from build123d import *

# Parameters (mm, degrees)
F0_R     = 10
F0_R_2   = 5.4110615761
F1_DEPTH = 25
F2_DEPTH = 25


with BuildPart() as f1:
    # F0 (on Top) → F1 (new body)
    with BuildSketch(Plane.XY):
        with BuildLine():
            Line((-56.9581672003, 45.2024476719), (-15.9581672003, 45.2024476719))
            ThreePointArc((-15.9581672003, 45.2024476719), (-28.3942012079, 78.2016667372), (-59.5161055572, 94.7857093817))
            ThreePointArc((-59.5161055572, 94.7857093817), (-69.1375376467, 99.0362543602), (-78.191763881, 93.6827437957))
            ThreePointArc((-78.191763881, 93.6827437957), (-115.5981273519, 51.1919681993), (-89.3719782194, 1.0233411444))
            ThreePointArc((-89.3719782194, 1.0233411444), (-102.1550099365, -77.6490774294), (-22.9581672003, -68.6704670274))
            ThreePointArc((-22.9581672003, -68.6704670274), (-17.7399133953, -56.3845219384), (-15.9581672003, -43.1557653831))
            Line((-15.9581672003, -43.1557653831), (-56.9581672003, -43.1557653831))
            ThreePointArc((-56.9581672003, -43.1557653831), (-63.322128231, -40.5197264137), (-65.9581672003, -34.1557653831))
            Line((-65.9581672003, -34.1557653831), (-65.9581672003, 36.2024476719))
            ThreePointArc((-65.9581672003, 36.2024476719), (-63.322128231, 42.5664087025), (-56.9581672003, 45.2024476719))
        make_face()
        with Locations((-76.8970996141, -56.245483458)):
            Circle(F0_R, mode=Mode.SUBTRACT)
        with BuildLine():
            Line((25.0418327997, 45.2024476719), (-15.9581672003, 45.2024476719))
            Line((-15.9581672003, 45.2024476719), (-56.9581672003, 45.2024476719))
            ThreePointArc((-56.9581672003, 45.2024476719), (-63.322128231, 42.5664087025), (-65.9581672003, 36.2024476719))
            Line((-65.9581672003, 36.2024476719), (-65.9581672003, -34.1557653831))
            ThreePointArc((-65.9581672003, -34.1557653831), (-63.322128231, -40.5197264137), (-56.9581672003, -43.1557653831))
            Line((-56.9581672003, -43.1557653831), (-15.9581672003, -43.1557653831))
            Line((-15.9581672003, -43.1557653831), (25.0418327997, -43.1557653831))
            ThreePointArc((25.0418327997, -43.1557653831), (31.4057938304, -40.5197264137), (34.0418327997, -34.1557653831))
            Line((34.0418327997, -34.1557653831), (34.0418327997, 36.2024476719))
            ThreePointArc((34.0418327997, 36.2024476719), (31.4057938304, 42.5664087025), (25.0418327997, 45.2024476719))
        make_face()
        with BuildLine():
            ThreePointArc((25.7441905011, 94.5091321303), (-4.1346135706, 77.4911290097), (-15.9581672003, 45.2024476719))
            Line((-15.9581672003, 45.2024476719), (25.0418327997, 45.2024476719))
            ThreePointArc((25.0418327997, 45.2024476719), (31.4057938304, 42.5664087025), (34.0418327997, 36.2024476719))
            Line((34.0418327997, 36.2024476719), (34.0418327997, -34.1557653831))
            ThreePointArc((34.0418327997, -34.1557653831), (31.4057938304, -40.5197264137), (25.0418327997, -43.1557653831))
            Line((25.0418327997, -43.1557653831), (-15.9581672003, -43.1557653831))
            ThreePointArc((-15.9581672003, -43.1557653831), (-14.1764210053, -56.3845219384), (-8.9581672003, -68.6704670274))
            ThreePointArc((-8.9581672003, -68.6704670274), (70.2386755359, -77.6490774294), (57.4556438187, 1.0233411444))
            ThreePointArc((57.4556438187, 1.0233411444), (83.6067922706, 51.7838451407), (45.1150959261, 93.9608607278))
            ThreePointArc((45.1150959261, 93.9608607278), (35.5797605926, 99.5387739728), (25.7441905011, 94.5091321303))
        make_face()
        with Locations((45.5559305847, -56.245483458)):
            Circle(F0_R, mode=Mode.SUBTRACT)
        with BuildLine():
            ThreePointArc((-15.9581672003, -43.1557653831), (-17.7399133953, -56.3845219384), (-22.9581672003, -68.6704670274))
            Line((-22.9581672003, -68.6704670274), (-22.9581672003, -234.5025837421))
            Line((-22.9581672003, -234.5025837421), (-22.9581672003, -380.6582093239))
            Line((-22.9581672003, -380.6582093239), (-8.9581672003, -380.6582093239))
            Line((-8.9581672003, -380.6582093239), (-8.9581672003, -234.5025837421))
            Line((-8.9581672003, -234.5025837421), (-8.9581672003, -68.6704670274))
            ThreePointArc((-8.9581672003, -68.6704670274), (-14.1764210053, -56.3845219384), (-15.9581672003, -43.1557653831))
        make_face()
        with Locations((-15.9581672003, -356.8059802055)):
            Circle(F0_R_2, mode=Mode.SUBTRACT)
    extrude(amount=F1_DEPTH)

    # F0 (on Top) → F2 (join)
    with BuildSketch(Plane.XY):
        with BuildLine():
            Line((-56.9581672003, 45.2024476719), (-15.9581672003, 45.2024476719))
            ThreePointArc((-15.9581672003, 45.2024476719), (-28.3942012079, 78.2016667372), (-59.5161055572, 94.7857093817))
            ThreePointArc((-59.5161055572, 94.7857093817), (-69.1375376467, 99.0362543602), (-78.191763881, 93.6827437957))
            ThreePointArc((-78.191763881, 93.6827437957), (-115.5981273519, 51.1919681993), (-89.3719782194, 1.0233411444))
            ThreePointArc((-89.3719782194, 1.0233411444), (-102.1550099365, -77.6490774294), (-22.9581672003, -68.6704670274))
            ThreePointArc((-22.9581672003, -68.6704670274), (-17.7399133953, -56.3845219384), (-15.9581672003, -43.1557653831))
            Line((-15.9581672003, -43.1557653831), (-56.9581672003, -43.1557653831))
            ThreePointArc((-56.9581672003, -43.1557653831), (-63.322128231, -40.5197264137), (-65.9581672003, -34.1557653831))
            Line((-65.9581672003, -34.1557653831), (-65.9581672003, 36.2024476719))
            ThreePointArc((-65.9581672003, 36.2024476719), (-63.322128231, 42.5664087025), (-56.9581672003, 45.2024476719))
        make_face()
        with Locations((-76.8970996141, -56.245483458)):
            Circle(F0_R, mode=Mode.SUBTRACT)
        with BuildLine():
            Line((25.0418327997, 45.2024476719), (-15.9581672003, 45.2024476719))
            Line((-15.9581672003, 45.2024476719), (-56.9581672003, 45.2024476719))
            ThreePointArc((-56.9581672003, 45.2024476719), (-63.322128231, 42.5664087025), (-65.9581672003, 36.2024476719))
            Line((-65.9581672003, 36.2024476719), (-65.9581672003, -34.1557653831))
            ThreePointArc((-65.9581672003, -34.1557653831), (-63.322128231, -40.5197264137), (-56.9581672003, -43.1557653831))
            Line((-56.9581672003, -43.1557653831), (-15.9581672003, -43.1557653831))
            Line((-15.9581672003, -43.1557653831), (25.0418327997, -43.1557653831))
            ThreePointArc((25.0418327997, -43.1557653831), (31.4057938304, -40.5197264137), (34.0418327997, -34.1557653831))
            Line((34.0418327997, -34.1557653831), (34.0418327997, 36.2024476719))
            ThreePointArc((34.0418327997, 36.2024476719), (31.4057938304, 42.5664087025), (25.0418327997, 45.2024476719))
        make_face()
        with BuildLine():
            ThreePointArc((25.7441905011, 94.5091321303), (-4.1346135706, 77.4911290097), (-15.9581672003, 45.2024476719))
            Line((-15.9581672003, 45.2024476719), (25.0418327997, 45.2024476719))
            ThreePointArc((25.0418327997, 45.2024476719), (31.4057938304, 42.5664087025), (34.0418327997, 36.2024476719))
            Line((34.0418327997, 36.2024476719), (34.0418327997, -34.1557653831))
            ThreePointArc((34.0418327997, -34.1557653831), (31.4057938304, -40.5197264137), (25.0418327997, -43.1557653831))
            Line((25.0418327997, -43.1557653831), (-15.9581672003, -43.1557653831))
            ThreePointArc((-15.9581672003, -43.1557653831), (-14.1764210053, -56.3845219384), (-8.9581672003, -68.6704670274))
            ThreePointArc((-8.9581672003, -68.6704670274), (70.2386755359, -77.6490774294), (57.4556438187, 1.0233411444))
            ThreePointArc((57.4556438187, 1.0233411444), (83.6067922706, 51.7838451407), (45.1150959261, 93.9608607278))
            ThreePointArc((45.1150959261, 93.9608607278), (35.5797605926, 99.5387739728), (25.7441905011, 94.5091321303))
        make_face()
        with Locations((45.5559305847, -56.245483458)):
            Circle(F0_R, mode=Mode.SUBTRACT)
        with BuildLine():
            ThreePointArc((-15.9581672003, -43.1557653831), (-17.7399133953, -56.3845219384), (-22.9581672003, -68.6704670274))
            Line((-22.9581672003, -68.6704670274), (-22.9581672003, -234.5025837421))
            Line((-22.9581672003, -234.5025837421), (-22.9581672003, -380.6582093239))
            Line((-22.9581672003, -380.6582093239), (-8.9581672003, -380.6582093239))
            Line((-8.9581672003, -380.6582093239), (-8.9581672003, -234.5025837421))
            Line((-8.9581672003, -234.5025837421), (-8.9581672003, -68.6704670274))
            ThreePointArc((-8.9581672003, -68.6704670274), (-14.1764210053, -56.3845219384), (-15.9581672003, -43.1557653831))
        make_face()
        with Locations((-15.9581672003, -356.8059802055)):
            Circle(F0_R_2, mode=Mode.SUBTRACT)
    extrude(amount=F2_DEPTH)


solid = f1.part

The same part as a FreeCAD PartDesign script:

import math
import FreeCAD as App
import Part
import Sketcher

V = App.Vector
Q = App.Units.Quantity

doc = App.newDocument("Part")
body = doc.addObject("PartDesign::Body", "Body")

# Sketch on XY plane
sketch1 = body.newObject("Sketcher::SketchObject", "Sketch")
sketch1.AttachmentSupport = (doc.getObject("XY_Plane"), [""])
sketch1.MapMode = "FlatFace"
sketch1.addGeometry([
    Part.ArcOfCircle(Part.Circle(V(-66, 45, 0), V(0, 0, 1), 50), math.radians(0), math.radians(83)),  # 0
    Part.ArcOfCircle(Part.Circle(V(-68, 88, 0), V(0, 0, 1), 12), math.radians(39), math.radians(148)),  # 1
    Part.ArcOfCircle(Part.Circle(V(-66, 45, 0), V(0, 0, 1), 50), math.radians(104), math.radians(242)),  # 2
    Part.ArcOfCircle(Part.Circle(V(-66, -43, 0), V(0, 0, 1), 50), math.radians(118), math.radians(329)),  # 3
    Part.LineSegment(V(-23, -69, 0), V(-23, -381, 0)),  # 4
    Part.LineSegment(V(-23, -381, 0), V(-9, -381, 0)),  # 5
    Part.LineSegment(V(-9, -381, 0), V(-9, -69, 0)),  # 6
    Part.ArcOfCircle(Part.Circle(V(34, -43, 0), V(0, 0, 1), 50), math.radians(-149), math.radians(62)),  # 7
    Part.ArcOfCircle(Part.Circle(V(34, 45, 0), V(0, 0, 1), 50), math.radians(-62), math.radians(77)),  # 8
    Part.ArcOfCircle(Part.Circle(V(35, 88, 0), V(0, 0, 1), 12), math.radians(31), math.radians(146)),  # 9
    Part.ArcOfCircle(Part.Circle(V(34, 45, 0), V(0, 0, 1), 50), math.radians(100), math.radians(180)),  # 10
    Part.Circle(V(-16, -357, 0), V(0, 0, 1), 5),  # 11
    Part.Circle(V(-77, -56, 0), V(0, 0, 1), 10),  # 12
    Part.Circle(V(46, -56, 0), V(0, 0, 1), 10),  # 13
], False)
sketch1.addConstraint([
    Sketcher.Constraint("Coincident", 0, 2, 1, 1),
    Sketcher.Constraint("Coincident", 1, 2, 2, 1),
    Sketcher.Constraint("Coincident", 2, 2, 3, 1),
    Sketcher.Constraint("Coincident", 3, 2, 4, 1),
    Sketcher.Constraint("Coincident", 4, 2, 5, 1),
    Sketcher.Constraint("Coincident", 5, 2, 6, 1),
    Sketcher.Constraint("Coincident", 6, 2, 7, 1),
    Sketcher.Constraint("Coincident", 7, 2, 8, 1),
    Sketcher.Constraint("Coincident", 8, 2, 9, 1),
    Sketcher.Constraint("Coincident", 9, 2, 10, 1),
    Sketcher.Constraint("Tangent", 10, 2, 0, 1),
    Sketcher.Constraint("Vertical", 4),
    Sketcher.Constraint("Horizontal", 5),
    Sketcher.Constraint("Vertical", 6),
    Sketcher.Constraint("Coincident", 2, 3, 0, 3),
    Sketcher.Constraint("Coincident", 10, 3, 8, 3),
    Sketcher.Constraint("Equal", 0, 2),
    Sketcher.Constraint("Equal", 2, 3),
    Sketcher.Constraint("Equal", 3, 7),
    Sketcher.Constraint("Equal", 7, 8),
    Sketcher.Constraint("Equal", 1, 9),
    Sketcher.Constraint("Equal", 8, 10),
    Sketcher.Constraint("Equal", 12, 13),
    Sketcher.Constraint("Horizontal", 3, 3, 7, 3),
    Sketcher.Constraint("Horizontal", 2, 3, 8, 3),
    Sketcher.Constraint("Horizontal", 12, 3, 13, 3),
    Sketcher.Constraint("Horizontal", 3, 2, 6, 2),
    Sketcher.Constraint("Horizontal", 2, 2, 7, 2),
    Sketcher.Constraint("Vertical", 2, 3, 3, 3),
    Sketcher.Constraint("Vertical", 11, 3, 10, 2),
    Sketcher.Constraint("Diameter", 12, Q("20 mm")),
    Sketcher.Constraint("Radius", 0, Q("50 mm")),
    Sketcher.Constraint("Radius", 1, Q("11.5 mm")),
    Sketcher.Constraint("DistanceX", 5, 1, 5, 2, Q("14 mm")),
    Sketcher.Constraint("Diameter", 11, Q("10.822123 mm")),
    Sketcher.Constraint("DistanceX", 12, 3, -1, 1, Q("76.8971 mm")),
    Sketcher.Constraint("DistanceX", 9, 3, 8, 2, Q("9.860699 mm")),
    Sketcher.Constraint("DistanceX", 0, 2, 8, 2, Q("104.631201 mm")),
    Sketcher.Constraint("DistanceY", 4, 2, 4, 1, Q("311.987742 mm")),
    Sketcher.Constraint("DistanceX", 1, 3, -1, 1, Q("68.459541 mm")),
    Sketcher.Constraint("DistanceY", 11, 3, -1, 1, Q("356.80598 mm")),
    Sketcher.Constraint("DistanceX", -1, 1, 13, 3, Q("45.555931 mm")),
    Sketcher.Constraint("DistanceY", -1, 1, 0, 2, Q("94.785709 mm")),
    Sketcher.Constraint("DistanceX", 2, 2, -1, 1, Q("89.371978 mm")),
    Sketcher.Constraint("DistanceY", -1, 1, 2, 2, Q("1.023341 mm")),
    Sketcher.Constraint("DistanceY", 4, 2, -1, 1, Q("380.658209 mm")),
    Sketcher.Constraint("DistanceY", 12, 3, 3, 3, Q("13.089718 mm")),
])
pad1 = body.newObject("PartDesign::Pad", "Pad")
pad1.Profile = sketch1
pad1.Length = 25

# Sketch on XY plane
sketch2 = body.newObject("Sketcher::SketchObject", "Sketch001")
sketch2.AttachmentSupport = (doc.getObject("XY_Plane"), [""])
sketch2.MapMode = "FlatFace"
sketch2.addGeometry([
    Part.ArcOfCircle(Part.Circle(V(-66, 45, 0), V(0, 0, 1), 50), math.radians(0), math.radians(83)),  # 0
    Part.ArcOfCircle(Part.Circle(V(-68, 88, 0), V(0, 0, 1), 12), math.radians(39), math.radians(148)),  # 1
    Part.ArcOfCircle(Part.Circle(V(-66, 45, 0), V(0, 0, 1), 50), math.radians(104), math.radians(242)),  # 2
    Part.ArcOfCircle(Part.Circle(V(-66, -43, 0), V(0, 0, 1), 50), math.radians(118), math.radians(329)),  # 3
    Part.LineSegment(V(-23, -69, 0), V(-23, -381, 0)),  # 4
    Part.LineSegment(V(-23, -381, 0), V(-9, -381, 0)),  # 5
    Part.LineSegment(V(-9, -381, 0), V(-9, -69, 0)),  # 6
    Part.ArcOfCircle(Part.Circle(V(34, -43, 0), V(0, 0, 1), 50), math.radians(-149), math.radians(62)),  # 7
    Part.ArcOfCircle(Part.Circle(V(34, 45, 0), V(0, 0, 1), 50), math.radians(-62), math.radians(77)),  # 8
    Part.ArcOfCircle(Part.Circle(V(35, 88, 0), V(0, 0, 1), 12), math.radians(31), math.radians(146)),  # 9
    Part.ArcOfCircle(Part.Circle(V(34, 45, 0), V(0, 0, 1), 50), math.radians(100), math.radians(180)),  # 10
    Part.Circle(V(-16, -357, 0), V(0, 0, 1), 5),  # 11
    Part.Circle(V(-77, -56, 0), V(0, 0, 1), 10),  # 12
    Part.Circle(V(46, -56, 0), V(0, 0, 1), 10),  # 13
], False)
sketch2.addConstraint([
    Sketcher.Constraint("Coincident", 0, 2, 1, 1),
    Sketcher.Constraint("Coincident", 1, 2, 2, 1),
    Sketcher.Constraint("Coincident", 2, 2, 3, 1),
    Sketcher.Constraint("Coincident", 3, 2, 4, 1),
    Sketcher.Constraint("Coincident", 4, 2, 5, 1),
    Sketcher.Constraint("Coincident", 5, 2, 6, 1),
    Sketcher.Constraint("Coincident", 6, 2, 7, 1),
    Sketcher.Constraint("Coincident", 7, 2, 8, 1),
    Sketcher.Constraint("Coincident", 8, 2, 9, 1),
    Sketcher.Constraint("Coincident", 9, 2, 10, 1),
    Sketcher.Constraint("Tangent", 10, 2, 0, 1),
    Sketcher.Constraint("Vertical", 4),
    Sketcher.Constraint("Horizontal", 5),
    Sketcher.Constraint("Vertical", 6),
    Sketcher.Constraint("Coincident", 2, 3, 0, 3),
    Sketcher.Constraint("Coincident", 10, 3, 8, 3),
    Sketcher.Constraint("Equal", 0, 2),
    Sketcher.Constraint("Equal", 2, 3),
    Sketcher.Constraint("Equal", 3, 7),
    Sketcher.Constraint("Equal", 7, 8),
    Sketcher.Constraint("Equal", 1, 9),
    Sketcher.Constraint("Equal", 8, 10),
    Sketcher.Constraint("Equal", 12, 13),
    Sketcher.Constraint("Horizontal", 3, 3, 7, 3),
    Sketcher.Constraint("Horizontal", 2, 3, 8, 3),
    Sketcher.Constraint("Horizontal", 12, 3, 13, 3),
    Sketcher.Constraint("Horizontal", 3, 2, 6, 2),
    Sketcher.Constraint("Horizontal", 2, 2, 7, 2),
    Sketcher.Constraint("Vertical", 2, 3, 3, 3),
    Sketcher.Constraint("Vertical", 11, 3, 10, 2),
    Sketcher.Constraint("Diameter", 12, Q("20 mm")),
    Sketcher.Constraint("Radius", 0, Q("50 mm")),
    Sketcher.Constraint("Radius", 1, Q("11.5 mm")),
    Sketcher.Constraint("DistanceX", 5, 1, 5, 2, Q("14 mm")),
    Sketcher.Constraint("Diameter", 11, Q("10.822123 mm")),
    Sketcher.Constraint("DistanceX", 12, 3, -1, 1, Q("76.8971 mm")),
    Sketcher.Constraint("DistanceX", 9, 3, 8, 2, Q("9.860699 mm")),
    Sketcher.Constraint("DistanceX", 0, 2, 8, 2, Q("104.631201 mm")),
    Sketcher.Constraint("DistanceY", 4, 2, 4, 1, Q("311.987742 mm")),
    Sketcher.Constraint("DistanceX", 1, 3, -1, 1, Q("68.459541 mm")),
    Sketcher.Constraint("DistanceY", 11, 3, -1, 1, Q("356.80598 mm")),
    Sketcher.Constraint("DistanceX", -1, 1, 13, 3, Q("45.555931 mm")),
    Sketcher.Constraint("DistanceY", -1, 1, 0, 2, Q("94.785709 mm")),
    Sketcher.Constraint("DistanceX", 2, 2, -1, 1, Q("89.371978 mm")),
    Sketcher.Constraint("DistanceY", -1, 1, 2, 2, Q("1.023341 mm")),
    Sketcher.Constraint("DistanceY", 4, 2, -1, 1, Q("380.658209 mm")),
    Sketcher.Constraint("DistanceY", 12, 3, 3, 3, Q("13.089718 mm")),
])
pad2 = body.newObject("PartDesign::Pad", "Pad001")
pad2.Profile = sketch2
pad2.Length = 25

doc.recompute()
